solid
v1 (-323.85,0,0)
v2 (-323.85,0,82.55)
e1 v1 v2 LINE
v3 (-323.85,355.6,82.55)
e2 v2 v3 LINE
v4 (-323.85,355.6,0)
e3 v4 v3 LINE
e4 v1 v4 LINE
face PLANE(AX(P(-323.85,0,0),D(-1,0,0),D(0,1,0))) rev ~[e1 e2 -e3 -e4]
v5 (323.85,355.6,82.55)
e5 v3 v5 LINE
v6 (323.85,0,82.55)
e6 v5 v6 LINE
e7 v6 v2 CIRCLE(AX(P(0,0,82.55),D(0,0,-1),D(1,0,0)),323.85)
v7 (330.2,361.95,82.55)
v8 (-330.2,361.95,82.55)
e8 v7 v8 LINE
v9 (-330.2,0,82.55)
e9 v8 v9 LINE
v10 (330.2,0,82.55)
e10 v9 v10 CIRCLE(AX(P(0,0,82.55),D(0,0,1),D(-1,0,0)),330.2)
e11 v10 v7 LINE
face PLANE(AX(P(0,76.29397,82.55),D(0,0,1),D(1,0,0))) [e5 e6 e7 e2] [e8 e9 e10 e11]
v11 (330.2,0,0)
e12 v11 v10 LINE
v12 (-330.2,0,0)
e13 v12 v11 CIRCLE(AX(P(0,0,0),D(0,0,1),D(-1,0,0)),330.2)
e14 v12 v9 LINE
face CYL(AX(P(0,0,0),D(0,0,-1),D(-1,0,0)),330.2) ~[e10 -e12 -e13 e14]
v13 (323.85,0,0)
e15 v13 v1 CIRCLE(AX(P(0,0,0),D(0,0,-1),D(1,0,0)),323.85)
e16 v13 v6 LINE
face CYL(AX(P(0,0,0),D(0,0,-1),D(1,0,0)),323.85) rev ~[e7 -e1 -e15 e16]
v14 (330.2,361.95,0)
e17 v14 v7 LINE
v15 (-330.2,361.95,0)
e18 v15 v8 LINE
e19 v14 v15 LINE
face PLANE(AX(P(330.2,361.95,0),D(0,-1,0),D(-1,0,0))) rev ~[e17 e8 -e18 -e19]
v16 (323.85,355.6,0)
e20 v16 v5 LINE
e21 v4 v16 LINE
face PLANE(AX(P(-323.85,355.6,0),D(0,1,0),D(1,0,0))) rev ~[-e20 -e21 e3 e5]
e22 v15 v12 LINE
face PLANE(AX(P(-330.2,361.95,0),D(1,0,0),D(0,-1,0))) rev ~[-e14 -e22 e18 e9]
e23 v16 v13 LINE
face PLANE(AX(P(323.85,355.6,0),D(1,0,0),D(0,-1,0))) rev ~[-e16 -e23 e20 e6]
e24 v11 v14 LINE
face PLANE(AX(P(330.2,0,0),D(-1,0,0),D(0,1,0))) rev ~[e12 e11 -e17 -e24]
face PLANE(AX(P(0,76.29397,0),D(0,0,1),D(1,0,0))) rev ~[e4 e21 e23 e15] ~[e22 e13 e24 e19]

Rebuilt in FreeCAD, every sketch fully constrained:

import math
import FreeCAD as App
import Part
import Sketcher
from FreeCAD import Vector
Q = App.Units.Quantity

doc = App.newDocument("Part")
body = doc.addObject("PartDesign::Body", "Body")

# Sketch on XY plane
sketch1 = doc.addObject("Sketcher::SketchObject", "Sketch")
body.addObject(sketch1)
sketch1.AttachmentSupport = (doc.XY_Plane, [""])
sketch1.MapMode = "FlatFace"
sketch1.addGeometry([
    Part.ArcOfCircle(Part.Circle(Vector(0, 0, 0), Vector(0, 0, 1), 330), math.radians(180), math.radians(360)),  # 0
    Part.LineSegment(Vector(330, 0, 0), Vector(330, 362, 0)),  # 1
    Part.LineSegment(Vector(330, 362, 0), Vector(-330, 362, 0)),  # 2
    Part.LineSegment(Vector(-330, 362, 0), Vector(-330, 0, 0)),  # 3
    Part.LineSegment(Vector(324, 356, 0), Vector(324, 0, 0)),  # 4
    Part.ArcOfCircle(Part.Circle(Vector(0, 0, 0), Vector(0, 0, 1), 324), math.radians(180), math.radians(360)),  # 5
    Part.LineSegment(Vector(-324, 0, 0), Vector(-324, 356, 0)),  # 6
    Part.LineSegment(Vector(-324, 356, 0), Vector(324, 356, 0)),  # 7
], False)
sketch1.addConstraint([
    Sketcher.Constraint("Tangent", 0, 2, 1, 1),
    Sketcher.Constraint("Coincident", 1, 2, 2, 1),
    Sketcher.Constraint("Coincident", 2, 2, 3, 1),
    Sketcher.Constraint("Tangent", 3, 2, 0, 1),
    Sketcher.Constraint("Tangent", 4, 2, 5, 2),
    Sketcher.Constraint("Tangent", 5, 1, 6, 1),
    Sketcher.Constraint("Coincident", 6, 2, 7, 1),
    Sketcher.Constraint("Coincident", 7, 2, 4, 1),
    Sketcher.Constraint("Vertical", 1),
    Sketcher.Constraint("Horizontal", 2),
    Sketcher.Constraint("Vertical", 3),
    Sketcher.Constraint("Vertical", 4),
    Sketcher.Constraint("Vertical", 6),
    Sketcher.Constraint("Horizontal", 7),
    Sketcher.Constraint("Coincident", 0, 3, -1, 1),
    Sketcher.Constraint("Coincident", 5, 3, -1, 1),
    Sketcher.Constraint("Radius", 0, Q("13 in")),
    Sketcher.Constraint("DistanceY", 4, 2, 4, 1, Q("14 in")),
    Sketcher.Constraint("Radius", 5, Q("12.75 in")),
    Sketcher.Constraint("DistanceY", 1, 1, 1, 2, Q("14.25 in")),
])
pad1 = doc.addObject("PartDesign::Pad", "Pad")
body.addObject(pad1)
pad1.Profile = sketch1
pad1.Length = Q("3.25 in")

doc.recompute()
